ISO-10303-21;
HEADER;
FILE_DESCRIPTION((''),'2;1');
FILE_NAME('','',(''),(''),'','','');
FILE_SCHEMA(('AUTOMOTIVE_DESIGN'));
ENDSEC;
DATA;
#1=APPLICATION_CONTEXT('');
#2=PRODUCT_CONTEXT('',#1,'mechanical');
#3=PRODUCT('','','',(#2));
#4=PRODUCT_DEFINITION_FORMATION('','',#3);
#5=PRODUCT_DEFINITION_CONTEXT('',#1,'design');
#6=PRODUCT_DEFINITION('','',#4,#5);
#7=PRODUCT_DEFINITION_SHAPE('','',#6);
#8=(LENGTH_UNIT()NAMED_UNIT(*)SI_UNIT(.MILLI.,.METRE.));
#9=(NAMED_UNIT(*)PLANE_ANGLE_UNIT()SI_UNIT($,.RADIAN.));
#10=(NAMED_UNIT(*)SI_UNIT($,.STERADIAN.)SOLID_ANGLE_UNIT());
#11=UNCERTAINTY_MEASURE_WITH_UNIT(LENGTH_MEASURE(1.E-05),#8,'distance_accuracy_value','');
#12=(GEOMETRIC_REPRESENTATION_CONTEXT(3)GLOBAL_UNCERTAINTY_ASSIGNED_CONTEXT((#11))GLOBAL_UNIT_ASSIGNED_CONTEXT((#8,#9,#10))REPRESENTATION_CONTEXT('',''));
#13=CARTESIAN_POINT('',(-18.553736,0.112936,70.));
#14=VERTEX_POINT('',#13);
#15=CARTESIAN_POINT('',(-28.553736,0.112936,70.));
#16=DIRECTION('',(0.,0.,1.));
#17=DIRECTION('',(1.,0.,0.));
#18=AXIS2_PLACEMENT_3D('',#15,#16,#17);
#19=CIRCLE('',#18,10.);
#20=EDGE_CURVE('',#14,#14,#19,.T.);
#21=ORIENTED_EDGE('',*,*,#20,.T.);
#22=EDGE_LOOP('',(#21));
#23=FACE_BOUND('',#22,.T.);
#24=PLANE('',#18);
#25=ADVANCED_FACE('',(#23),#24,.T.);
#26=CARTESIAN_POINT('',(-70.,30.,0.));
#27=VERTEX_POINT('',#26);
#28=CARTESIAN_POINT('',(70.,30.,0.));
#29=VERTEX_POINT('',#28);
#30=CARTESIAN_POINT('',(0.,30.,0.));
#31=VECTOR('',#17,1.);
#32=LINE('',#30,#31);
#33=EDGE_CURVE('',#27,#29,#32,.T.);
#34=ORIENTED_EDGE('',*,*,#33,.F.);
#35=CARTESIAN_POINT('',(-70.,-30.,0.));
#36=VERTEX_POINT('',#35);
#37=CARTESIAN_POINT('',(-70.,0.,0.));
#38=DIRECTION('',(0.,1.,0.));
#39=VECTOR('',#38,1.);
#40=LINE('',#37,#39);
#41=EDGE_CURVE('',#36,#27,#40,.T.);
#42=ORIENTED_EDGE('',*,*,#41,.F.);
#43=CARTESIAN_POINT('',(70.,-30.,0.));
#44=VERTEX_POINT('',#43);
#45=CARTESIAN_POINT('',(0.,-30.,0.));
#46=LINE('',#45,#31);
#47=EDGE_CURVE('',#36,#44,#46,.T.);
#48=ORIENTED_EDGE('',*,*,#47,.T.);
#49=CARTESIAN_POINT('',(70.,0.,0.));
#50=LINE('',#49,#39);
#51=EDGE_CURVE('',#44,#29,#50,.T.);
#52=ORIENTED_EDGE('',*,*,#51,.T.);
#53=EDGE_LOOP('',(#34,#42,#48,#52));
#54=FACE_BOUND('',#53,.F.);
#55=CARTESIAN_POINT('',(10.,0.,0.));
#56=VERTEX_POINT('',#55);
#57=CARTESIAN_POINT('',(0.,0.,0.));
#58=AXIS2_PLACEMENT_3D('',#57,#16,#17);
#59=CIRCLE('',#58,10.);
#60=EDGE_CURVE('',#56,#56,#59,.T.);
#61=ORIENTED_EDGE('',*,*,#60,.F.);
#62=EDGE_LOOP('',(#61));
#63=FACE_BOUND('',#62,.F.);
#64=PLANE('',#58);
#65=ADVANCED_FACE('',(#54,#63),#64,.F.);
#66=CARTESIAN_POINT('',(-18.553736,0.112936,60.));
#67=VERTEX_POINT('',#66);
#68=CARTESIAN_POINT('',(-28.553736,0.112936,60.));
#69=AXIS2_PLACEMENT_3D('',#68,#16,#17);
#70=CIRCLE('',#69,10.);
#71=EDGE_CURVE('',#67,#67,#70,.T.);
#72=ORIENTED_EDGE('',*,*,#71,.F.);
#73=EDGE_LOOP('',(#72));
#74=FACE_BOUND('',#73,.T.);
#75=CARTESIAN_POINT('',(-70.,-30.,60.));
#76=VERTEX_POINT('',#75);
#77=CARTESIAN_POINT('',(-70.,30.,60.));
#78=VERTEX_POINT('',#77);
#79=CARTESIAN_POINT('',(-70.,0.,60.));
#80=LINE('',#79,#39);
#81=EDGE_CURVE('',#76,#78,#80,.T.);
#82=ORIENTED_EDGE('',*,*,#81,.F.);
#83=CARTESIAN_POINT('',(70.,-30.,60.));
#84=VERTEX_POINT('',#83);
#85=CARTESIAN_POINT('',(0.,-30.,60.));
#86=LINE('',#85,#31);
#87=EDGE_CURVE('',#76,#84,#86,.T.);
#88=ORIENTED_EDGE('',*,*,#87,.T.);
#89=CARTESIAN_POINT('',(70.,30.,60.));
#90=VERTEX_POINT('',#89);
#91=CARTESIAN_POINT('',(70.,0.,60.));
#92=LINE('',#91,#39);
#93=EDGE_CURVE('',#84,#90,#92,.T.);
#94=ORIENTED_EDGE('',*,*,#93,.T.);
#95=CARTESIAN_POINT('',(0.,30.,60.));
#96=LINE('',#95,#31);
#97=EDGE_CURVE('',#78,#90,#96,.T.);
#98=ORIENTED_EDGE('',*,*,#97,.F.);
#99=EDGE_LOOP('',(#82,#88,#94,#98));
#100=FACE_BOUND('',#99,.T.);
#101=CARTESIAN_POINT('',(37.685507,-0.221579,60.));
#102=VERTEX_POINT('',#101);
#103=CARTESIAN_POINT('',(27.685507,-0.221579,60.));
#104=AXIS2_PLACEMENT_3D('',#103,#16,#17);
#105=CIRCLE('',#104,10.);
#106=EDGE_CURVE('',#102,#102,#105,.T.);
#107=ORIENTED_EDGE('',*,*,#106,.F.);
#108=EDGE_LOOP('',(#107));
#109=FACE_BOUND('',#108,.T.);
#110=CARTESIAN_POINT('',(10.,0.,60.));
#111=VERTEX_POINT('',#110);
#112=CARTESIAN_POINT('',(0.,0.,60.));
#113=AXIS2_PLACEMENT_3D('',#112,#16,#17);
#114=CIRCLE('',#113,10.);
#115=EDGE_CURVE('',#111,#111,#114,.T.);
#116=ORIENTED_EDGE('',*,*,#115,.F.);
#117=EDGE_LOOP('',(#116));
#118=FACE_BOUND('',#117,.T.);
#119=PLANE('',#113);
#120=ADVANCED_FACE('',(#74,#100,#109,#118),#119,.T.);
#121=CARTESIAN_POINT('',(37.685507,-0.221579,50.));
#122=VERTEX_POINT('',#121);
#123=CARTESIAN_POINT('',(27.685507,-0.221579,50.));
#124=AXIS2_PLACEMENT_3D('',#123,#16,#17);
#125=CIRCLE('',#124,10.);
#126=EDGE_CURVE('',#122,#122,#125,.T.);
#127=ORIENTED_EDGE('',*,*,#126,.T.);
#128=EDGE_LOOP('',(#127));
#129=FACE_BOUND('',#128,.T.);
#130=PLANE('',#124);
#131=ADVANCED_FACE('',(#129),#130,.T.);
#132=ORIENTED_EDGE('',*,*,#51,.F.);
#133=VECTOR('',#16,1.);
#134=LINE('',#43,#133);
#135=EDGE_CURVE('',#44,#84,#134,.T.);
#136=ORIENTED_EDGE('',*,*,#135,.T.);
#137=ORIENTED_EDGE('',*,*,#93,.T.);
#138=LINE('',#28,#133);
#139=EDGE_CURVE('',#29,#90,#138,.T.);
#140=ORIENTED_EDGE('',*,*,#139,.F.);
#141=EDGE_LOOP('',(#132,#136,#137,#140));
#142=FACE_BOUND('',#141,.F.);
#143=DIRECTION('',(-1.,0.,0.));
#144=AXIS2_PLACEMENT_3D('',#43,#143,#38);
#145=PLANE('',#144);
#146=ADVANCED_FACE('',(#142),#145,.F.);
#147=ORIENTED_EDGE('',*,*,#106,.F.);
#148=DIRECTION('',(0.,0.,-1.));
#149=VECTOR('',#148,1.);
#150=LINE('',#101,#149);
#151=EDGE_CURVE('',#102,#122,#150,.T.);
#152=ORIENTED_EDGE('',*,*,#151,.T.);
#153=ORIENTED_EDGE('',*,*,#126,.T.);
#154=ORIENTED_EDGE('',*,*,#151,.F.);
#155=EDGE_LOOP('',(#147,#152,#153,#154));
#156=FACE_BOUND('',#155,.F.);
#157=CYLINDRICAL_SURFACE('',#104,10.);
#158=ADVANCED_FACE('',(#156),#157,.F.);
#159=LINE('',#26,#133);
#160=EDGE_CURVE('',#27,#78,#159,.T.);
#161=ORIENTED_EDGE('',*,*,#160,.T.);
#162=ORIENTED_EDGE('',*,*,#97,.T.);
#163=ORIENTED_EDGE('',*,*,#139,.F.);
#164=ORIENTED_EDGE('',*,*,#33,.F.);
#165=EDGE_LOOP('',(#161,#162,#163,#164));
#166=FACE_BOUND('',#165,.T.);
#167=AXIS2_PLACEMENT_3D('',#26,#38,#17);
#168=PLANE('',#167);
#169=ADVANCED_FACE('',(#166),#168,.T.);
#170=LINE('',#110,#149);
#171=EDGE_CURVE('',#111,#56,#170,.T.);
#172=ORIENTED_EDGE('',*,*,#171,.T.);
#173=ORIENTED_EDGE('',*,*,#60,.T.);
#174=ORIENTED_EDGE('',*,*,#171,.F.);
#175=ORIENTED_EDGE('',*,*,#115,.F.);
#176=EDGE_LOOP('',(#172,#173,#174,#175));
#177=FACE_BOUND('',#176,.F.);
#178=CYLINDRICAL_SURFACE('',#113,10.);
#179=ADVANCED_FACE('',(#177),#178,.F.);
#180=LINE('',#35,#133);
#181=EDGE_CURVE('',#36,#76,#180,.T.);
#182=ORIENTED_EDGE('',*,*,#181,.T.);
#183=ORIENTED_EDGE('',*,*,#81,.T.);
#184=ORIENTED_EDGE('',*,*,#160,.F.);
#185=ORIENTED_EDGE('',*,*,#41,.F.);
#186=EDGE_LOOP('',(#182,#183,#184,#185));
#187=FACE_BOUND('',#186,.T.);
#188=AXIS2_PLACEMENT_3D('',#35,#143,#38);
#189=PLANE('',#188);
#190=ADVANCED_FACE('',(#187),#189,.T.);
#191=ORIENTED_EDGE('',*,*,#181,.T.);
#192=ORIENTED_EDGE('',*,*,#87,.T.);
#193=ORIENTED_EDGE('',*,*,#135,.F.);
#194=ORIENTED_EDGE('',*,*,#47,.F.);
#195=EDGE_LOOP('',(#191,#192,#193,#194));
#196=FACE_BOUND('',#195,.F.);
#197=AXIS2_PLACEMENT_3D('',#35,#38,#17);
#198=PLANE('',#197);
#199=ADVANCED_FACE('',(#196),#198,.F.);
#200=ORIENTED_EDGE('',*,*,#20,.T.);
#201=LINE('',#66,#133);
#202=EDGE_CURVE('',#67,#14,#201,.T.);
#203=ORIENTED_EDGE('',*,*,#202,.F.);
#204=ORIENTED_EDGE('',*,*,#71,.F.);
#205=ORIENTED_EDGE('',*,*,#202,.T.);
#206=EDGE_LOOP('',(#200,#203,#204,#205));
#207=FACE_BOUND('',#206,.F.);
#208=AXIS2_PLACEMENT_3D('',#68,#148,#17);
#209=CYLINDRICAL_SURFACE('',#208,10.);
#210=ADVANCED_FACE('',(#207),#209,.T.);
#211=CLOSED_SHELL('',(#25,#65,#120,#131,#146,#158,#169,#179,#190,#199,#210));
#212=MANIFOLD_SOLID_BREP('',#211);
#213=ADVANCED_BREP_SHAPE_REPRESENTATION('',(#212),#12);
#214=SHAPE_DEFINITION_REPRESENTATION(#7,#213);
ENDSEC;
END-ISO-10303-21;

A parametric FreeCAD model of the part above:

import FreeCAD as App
import Part
import Sketcher
from FreeCAD import Vector
Q = App.Units.Quantity


def add_polygon(sketch, points):
    """Adds a closed chain of lines whose ends are joined by coincident constraints."""
    first, n = sketch.GeometryCount, len(points)
    for a, b in zip(points, points[1:] + points[:1]):
        sketch.addGeometry(Part.LineSegment(App.Vector(*a, 0), App.Vector(*b, 0)), False)
    for i in range(n):
        sketch.addConstraint(Sketcher.Constraint("Coincident", first + i, 2, first + (i + 1) % n, 1))

doc = App.newDocument("Part")
body = doc.addObject("PartDesign::Body", "Body")

# Sketch on XY plane
sketch1 = body.newObject("Sketcher::SketchObject", "Sketch")
sketch1.AttachmentSupport = (doc.getObject("XY_Plane"), [""])
sketch1.MapMode = "FlatFace"
add_polygon(sketch1, [(-70, 30), (-70, -30), (70, -30), (70, 30)])  # lines 0-3
sketch1.addConstraint([
    Sketcher.Constraint("Vertical", 0),
    Sketcher.Constraint("Horizontal", 1),
    Sketcher.Constraint("Vertical", 2),
    Sketcher.Constraint("Horizontal", 3),
    Sketcher.Constraint("Symmetric", 0, 2, 2, 2, -1, 1),
    Sketcher.Constraint("DistanceX", 1, 1, 1, 2, Q("140 mm")),
    Sketcher.Constraint("DistanceY", 0, 2, 0, 1, Q("60 mm")),
])
pad1 = body.newObject("PartDesign::Pad", "Pad")
pad1.Profile = sketch1
pad1.Length = 60

# Sketch on XY plane
sketch2 = body.newObject("Sketcher::SketchObject", "Sketch001")
sketch2.AttachmentSupport = (doc.getObject("XY_Plane"), [""])
sketch2.MapMode = "FlatFace"
sketch2.AttachmentOffset = App.Placement(Vector(0, 0, 60), App.Rotation())
sketch2.addGeometry(Part.Circle(Vector(-28.553736, 0.112936, 0), Vector(0, 0, 1), 10), False)
sketch2.addConstraint([
    Sketcher.Constraint("Diameter", 0, Q("20 mm")),
    Sketcher.Constraint("DistanceX", 0, 3, -1, 1, Q("28.553736 mm")),
    Sketcher.Constraint("DistanceY", -1, 1, 0, 3, Q("0.112936 mm")),
])
pad2 = body.newObject("PartDesign::Pad", "Pad001")
pad2.Profile = sketch2
pad2.Length = 10

# Sketch on XY plane
sketch3 = body.newObject("Sketcher::SketchObject", "Sketch002")
sketch3.AttachmentSupport = (doc.getObject("XY_Plane"), [""])
sketch3.MapMode = "FlatFace"
sketch3.AttachmentOffset = App.Placement(Vector(0, 0, 60), App.Rotation())
sketch3.addGeometry(Part.Circle(Vector(27.685507, -0.221579, 0), Vector(0, 0, 1), 10), False)
sketch3.addConstraint([
    Sketcher.Constraint("Diameter", 0, Q("20 mm")),
    Sketcher.Constraint("DistanceY", 0, 3, -1, 1, Q("0.221579 mm")),
    Sketcher.Constraint("DistanceX", -1, 1, 0, 3, Q("27.685507 mm")),
])
pocket1 = body.newObject("PartDesign::Pocket", "Pocket")
pocket1.Profile = sketch3
pocket1.Length = 10

# Sketch on XY plane
sketch4 = body.newObject("Sketcher::SketchObject", "Sketch003")
sketch4.AttachmentSupport = (doc.getObject("XY_Plane"), [""])
sketch4.MapMode = "FlatFace"
sketch4.AttachmentOffset = App.Placement(Vector(0, 0, 60), App.Rotation())
sketch4.addGeometry(Part.Circle(Vector(0, 0, 0), Vector(0, 0, 1), 10), False)
sketch4.addConstraint([
    Sketcher.Constraint("Coincident", 0, 3, -1, 1),
    Sketcher.Constraint("Diameter", 0, Q("20 mm")),
])
pocket2 = body.newObject("PartDesign::Pocket", "Pocket001")
pocket2.Profile = sketch4
pocket2.Length = 72.9

doc.recompute()
